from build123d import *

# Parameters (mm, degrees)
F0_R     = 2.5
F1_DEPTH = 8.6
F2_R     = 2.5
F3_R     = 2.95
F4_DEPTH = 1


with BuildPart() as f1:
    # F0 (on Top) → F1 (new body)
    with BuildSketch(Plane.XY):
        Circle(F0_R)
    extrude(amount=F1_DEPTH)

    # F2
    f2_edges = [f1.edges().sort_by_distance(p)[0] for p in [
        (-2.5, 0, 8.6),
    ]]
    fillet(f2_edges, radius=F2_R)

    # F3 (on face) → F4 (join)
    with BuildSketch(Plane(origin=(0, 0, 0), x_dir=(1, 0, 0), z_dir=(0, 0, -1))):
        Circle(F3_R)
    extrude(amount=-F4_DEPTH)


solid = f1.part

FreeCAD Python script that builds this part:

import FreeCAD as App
import Part
import Sketcher

V = App.Vector


def edges_at(feature, points):
    """Names of the edges that pass closest to the given points."""
    edges = feature.Shape.Edges
    near = lambda p: min(range(len(edges)), key=lambda i: edges[i].distToShape(Part.Vertex(*p))[0])
    return sorted({f"Edge{near(p) + 1}" for p in points})

doc = App.newDocument("Part")
body = doc.addObject("PartDesign::Body", "Body")

sketch1 = body.newObject("Sketcher::SketchObject", "Sketch")
sketch1.AttachmentSupport = (doc.getObject("XY_Plane"), [""])
sketch1.MapMode = "FlatFace"
sketch1.addGeometry(Part.Circle(V(0, 0, 0), V(0, 0, 1), 2.5), False)
sketch1.addConstraint([
    Sketcher.Constraint("Coincident", 0, 3, -1, 1),
    Sketcher.Constraint("Diameter", 0, 5.0),
])
pad1 = body.newObject("PartDesign::Pad", "Pad")
pad1.Profile = sketch1
pad1.Length = 8.6
doc.recompute()

fillet = body.newObject("PartDesign::Fillet", "Fillet")
fillet.Base = (pad1, edges_at(pad1, [(-2.5, 0, 8.6)]))
fillet.Radius = 2.5

sketch2 = body.newObject("Sketcher::SketchObject", "Sketch001")
sketch2.AttachmentSupport = (doc.getObject("XY_Plane"), [""])
sketch2.MapMode = "FlatFace"
sketch2.addGeometry(Part.Circle(V(0, 0, 0), V(0, 0, 1), 2.95), False)
sketch2.addConstraint([
    Sketcher.Constraint("Coincident", 0, 3, -1, 1),
    Sketcher.Constraint("Diameter", 0, 5.9),
])
pad2 = body.newObject("PartDesign::Pad", "Pad001")
pad2.Profile = sketch2
pad2.Length = 1

doc.recompute()
